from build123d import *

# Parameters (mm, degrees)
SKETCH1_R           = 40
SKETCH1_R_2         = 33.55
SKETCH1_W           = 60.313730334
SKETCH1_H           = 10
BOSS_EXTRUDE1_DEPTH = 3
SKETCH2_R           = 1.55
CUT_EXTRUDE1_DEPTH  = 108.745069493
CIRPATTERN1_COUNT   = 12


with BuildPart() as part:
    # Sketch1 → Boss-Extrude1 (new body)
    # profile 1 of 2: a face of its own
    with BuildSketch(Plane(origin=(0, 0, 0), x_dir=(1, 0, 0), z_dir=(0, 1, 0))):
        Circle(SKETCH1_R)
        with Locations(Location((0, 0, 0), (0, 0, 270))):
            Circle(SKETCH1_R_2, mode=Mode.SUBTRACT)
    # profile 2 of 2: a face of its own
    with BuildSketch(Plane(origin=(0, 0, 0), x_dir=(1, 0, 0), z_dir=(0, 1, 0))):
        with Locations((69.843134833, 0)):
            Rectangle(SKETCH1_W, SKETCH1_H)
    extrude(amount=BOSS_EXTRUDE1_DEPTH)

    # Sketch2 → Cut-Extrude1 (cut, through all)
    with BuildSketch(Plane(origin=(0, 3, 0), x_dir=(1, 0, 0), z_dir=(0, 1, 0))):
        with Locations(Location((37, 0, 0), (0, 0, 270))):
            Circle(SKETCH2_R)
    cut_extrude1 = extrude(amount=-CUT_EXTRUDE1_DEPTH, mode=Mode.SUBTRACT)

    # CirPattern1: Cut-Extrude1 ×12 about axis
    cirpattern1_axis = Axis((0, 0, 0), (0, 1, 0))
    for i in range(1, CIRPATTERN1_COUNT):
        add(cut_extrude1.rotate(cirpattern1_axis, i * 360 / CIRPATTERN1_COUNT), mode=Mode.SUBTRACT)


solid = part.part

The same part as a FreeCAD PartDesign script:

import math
import FreeCAD as App
import Part
import Sketcher
from FreeCAD import Vector

doc = App.newDocument("Part")
body = doc.addObject("PartDesign::Body", "Body")

# Sketch on XZ plane
sketch1 = body.newObject("Sketcher::SketchObject", "Sketch")
sketch1.AttachmentSupport = (doc.getObject("XZ_Plane"), [""])
sketch1.MapMode = "FlatFace"
sketch1.addGeometry(Part.LineSegment(Vector(39.68627, 5, 0), Vector(100, 5, 0)), False)
sketch1.addGeometry(Part.LineSegment(Vector(100, 5, 0), Vector(100, -5, 0)), False)
sketch1.addGeometry(Part.LineSegment(Vector(100, -5, 0), Vector(39.68627, -5, 0)), False)
sketch1.addGeometry(Part.ArcOfCircle(Part.Circle(Vector(0, 0, 0), Vector(0, 0, 1), 40), math.radians(7.180756), math.radians(352.819244)), False)
sketch1.addGeometry(Part.Circle(Vector(0, 0, 0), Vector(0, 0, 1), 33.55), False)
sketch1.addConstraint(Sketcher.Constraint("Coincident", 0, 2, 1, 1))
sketch1.addConstraint(Sketcher.Constraint("Coincident", 1, 2, 2, 1))
sketch1.addConstraint(Sketcher.Constraint("Coincident", 2, 2, 3, 2))
sketch1.addConstraint(Sketcher.Constraint("Coincident", 3, 1, 0, 1))
sketch1.addConstraint(Sketcher.Constraint("Horizontal", 0))
sketch1.addConstraint(Sketcher.Constraint("Vertical", 1))
sketch1.addConstraint(Sketcher.Constraint("Horizontal", 2))
sketch1.addConstraint(Sketcher.Constraint("Coincident", 3, 3, -1, 1))
sketch1.addConstraint(Sketcher.Constraint("Coincident", 4, 3, -1, 1))
sketch1.addConstraint(Sketcher.Constraint("Vertical", 2, 2, 3, 1))
sketch1.addConstraint(Sketcher.Constraint("Radius", 3, 40.0))
sketch1.addConstraint(Sketcher.Constraint("Diameter", 4, 67.1))
sketch1.addConstraint(Sketcher.Constraint("DistanceY", 1, 2, 1, 1, 10.0))
sketch1.addConstraint(Sketcher.Constraint("DistanceX", -1, 1, 0, 2, 100.0))
pad1 = body.newObject("PartDesign::Pad", "Pad")
pad1.Profile = sketch1
pad1.Length = 3
pad1.Reversed = True

# Sketch on XZ plane
sketch2 = body.newObject("Sketcher::SketchObject", "Sketch001")
sketch2.AttachmentSupport = (doc.getObject("XZ_Plane"), [""])
sketch2.MapMode = "FlatFace"
sketch2.AttachmentOffset = App.Placement(Vector(0, 0, -3), App.Rotation())
sketch2.addGeometry(Part.Circle(Vector(37, 0, 0), Vector(0, 0, 1), 1.55), False)
sketch2.addConstraint(Sketcher.Constraint("PointOnObject", 0, 3, -1))
sketch2.addConstraint(Sketcher.Constraint("Diameter", 0, 3.1))
sketch2.addConstraint(Sketcher.Constraint("DistanceX", -1, 1, 0, 3, 37.0))
pocket1 = body.newObject("PartDesign::Pocket", "Pocket")
pocket1.Profile = sketch2
pocket1.Type = "ThroughAll"
pocket1.Reversed = True
doc.recompute()

polarpattern = body.newObject("PartDesign::PolarPattern", "PolarPattern")
polarpattern.Originals = [pocket1]
polarpattern.Axis = (doc.getObject("Y_Axis"), [""])
polarpattern.Angle = 360
polarpattern.Occurrences = 12
body.Tip = polarpattern

doc.recompute()
